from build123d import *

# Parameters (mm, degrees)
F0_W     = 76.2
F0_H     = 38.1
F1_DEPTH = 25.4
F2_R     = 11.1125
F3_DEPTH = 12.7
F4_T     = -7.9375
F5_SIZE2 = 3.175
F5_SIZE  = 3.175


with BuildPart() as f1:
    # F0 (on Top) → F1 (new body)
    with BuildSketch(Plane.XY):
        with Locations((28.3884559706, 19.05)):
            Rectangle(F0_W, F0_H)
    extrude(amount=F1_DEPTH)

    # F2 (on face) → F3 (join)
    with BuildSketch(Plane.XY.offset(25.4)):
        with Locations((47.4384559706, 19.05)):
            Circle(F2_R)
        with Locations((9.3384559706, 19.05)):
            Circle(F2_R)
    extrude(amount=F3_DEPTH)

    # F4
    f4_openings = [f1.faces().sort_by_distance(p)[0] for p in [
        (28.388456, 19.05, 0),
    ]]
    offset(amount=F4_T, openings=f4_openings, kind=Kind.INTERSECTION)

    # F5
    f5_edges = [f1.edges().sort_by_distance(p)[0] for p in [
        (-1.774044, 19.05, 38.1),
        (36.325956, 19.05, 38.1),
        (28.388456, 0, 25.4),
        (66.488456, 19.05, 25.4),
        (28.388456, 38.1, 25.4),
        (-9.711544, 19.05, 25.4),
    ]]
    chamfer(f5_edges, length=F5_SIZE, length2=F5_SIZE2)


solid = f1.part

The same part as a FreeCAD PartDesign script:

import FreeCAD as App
import Part
import Sketcher
Q = App.Units.Quantity


def edges_at(feature, points):
    """Names of the edges that pass closest to the given points."""
    edges = feature.Shape.Edges
    near = lambda p: min(range(len(edges)), key=lambda i: edges[i].distToShape(Part.Vertex(*p))[0])
    return sorted({f"Edge{near(p) + 1}" for p in points})


def faces_at(feature, points):
    """Names of the faces that lie closest to the given points."""
    faces = feature.Shape.Faces
    near = lambda p: min(range(len(faces)), key=lambda i: faces[i].distToShape(Part.Vertex(*p))[0])
    return sorted({f"Face{near(p) + 1}" for p in points})


def add_polygon(sketch, points):
    """Adds a closed chain of lines whose ends are joined by coincident constraints."""
    first, n = sketch.GeometryCount, len(points)
    for a, b in zip(points, points[1:] + points[:1]):
        sketch.addGeometry(Part.LineSegment(App.Vector(*a, 0), App.Vector(*b, 0)), False)
    for i in range(n):
        sketch.addConstraint(Sketcher.Constraint("Coincident", first + i, 2, first + (i + 1) % n, 1))

doc = App.newDocument("Part")
body = doc.addObject("PartDesign::Body", "Body")

# Sketch on XY plane
sketch1 = body.newObject("Sketcher::SketchObject", "Sketch")
sketch1.AttachmentSupport = (doc.getObject("XY_Plane"), [""])
sketch1.MapMode = "FlatFace"
add_polygon(sketch1, [(-9.711544, 38.1), (-9.711544, 0), (66.488456, 0), (66.488456, 38.1)])  # lines 0-3
sketch1.addConstraint([
    Sketcher.Constraint("Vertical", 0),
    Sketcher.Constraint("Horizontal", 1),
    Sketcher.Constraint("Vertical", 2),
    Sketcher.Constraint("Horizontal", 3),
    Sketcher.Constraint("PointOnObject", 0, 2, -1),
    Sketcher.Constraint("DistanceX", 1, 1, 1, 2, Q("3 in")),
    Sketcher.Constraint("DistanceY", 0, 2, 0, 1, Q("1.5 in")),
    Sketcher.Constraint("DistanceX", 0, 2, -1, 1, Q("9.711544 mm")),
])
pad1 = body.newObject("PartDesign::Pad", "Pad")
pad1.Profile = sketch1
pad1.Length = Q("1 in")

# Sketch on XY plane
sketch2 = body.newObject("Sketcher::SketchObject", "Sketch001")
sketch2.AttachmentSupport = (doc.getObject("XY_Plane"), [""])
sketch2.MapMode = "FlatFace"
sketch2.AttachmentOffset = App.Placement(App.Vector(0, 0, 1 * 25.4), App.Rotation())
sketch2.addGeometry([
    Part.Circle(App.Vector(47.438456, 19.05, 0), App.Vector(0, 0, 1), 11.1125),
    Part.Circle(App.Vector(9.338456, 19.05, 0), App.Vector(0, 0, 1), 11.1125),
], False)
sketch2.addConstraint([
    Sketcher.Constraint("Equal", 0, 1),
    Sketcher.Constraint("Horizontal", 0, 3, 1, 3),
    Sketcher.Constraint("Diameter", 0, Q("0.875 in")),
    Sketcher.Constraint("DistanceX", 1, 3, 0, 3, Q("1.5 in")),
    Sketcher.Constraint("DistanceY", -1, 1, 0, 3, Q("0.75 in")),
    Sketcher.Constraint("DistanceX", -1, 1, 0, 3, Q("47.438456 mm")),
])
pad2 = body.newObject("PartDesign::Pad", "Pad001")
pad2.Profile = sketch2
pad2.Length = Q("0.5 in")
doc.recompute()

thickness = body.newObject("PartDesign::Thickness", "Thickness")
thickness.Base = (pad2, faces_at(pad2, [(28.388, 19.05, 0)]))
thickness.Value = Q("0.3125 in")
thickness.Reversed = True
thickness.Join = "Intersection"
doc.recompute()

chamfer = body.newObject("PartDesign::Chamfer", "Chamfer")
chamfer.Base = (thickness, edges_at(thickness, [
    (-1.774, 19.05, 38.1),
    (36.326, 19.05, 38.1),
    (28.388, 0, 25.4),
    (66.488, 19.05, 25.4),
    (28.388, 38.1, 25.4),
    (-9.712, 19.05, 25.4),
]))
chamfer.ChamferType = "Two distances"
chamfer.Size = Q("0.125 in")
chamfer.Size2 = Q("0.125 in")

doc.recompute()
